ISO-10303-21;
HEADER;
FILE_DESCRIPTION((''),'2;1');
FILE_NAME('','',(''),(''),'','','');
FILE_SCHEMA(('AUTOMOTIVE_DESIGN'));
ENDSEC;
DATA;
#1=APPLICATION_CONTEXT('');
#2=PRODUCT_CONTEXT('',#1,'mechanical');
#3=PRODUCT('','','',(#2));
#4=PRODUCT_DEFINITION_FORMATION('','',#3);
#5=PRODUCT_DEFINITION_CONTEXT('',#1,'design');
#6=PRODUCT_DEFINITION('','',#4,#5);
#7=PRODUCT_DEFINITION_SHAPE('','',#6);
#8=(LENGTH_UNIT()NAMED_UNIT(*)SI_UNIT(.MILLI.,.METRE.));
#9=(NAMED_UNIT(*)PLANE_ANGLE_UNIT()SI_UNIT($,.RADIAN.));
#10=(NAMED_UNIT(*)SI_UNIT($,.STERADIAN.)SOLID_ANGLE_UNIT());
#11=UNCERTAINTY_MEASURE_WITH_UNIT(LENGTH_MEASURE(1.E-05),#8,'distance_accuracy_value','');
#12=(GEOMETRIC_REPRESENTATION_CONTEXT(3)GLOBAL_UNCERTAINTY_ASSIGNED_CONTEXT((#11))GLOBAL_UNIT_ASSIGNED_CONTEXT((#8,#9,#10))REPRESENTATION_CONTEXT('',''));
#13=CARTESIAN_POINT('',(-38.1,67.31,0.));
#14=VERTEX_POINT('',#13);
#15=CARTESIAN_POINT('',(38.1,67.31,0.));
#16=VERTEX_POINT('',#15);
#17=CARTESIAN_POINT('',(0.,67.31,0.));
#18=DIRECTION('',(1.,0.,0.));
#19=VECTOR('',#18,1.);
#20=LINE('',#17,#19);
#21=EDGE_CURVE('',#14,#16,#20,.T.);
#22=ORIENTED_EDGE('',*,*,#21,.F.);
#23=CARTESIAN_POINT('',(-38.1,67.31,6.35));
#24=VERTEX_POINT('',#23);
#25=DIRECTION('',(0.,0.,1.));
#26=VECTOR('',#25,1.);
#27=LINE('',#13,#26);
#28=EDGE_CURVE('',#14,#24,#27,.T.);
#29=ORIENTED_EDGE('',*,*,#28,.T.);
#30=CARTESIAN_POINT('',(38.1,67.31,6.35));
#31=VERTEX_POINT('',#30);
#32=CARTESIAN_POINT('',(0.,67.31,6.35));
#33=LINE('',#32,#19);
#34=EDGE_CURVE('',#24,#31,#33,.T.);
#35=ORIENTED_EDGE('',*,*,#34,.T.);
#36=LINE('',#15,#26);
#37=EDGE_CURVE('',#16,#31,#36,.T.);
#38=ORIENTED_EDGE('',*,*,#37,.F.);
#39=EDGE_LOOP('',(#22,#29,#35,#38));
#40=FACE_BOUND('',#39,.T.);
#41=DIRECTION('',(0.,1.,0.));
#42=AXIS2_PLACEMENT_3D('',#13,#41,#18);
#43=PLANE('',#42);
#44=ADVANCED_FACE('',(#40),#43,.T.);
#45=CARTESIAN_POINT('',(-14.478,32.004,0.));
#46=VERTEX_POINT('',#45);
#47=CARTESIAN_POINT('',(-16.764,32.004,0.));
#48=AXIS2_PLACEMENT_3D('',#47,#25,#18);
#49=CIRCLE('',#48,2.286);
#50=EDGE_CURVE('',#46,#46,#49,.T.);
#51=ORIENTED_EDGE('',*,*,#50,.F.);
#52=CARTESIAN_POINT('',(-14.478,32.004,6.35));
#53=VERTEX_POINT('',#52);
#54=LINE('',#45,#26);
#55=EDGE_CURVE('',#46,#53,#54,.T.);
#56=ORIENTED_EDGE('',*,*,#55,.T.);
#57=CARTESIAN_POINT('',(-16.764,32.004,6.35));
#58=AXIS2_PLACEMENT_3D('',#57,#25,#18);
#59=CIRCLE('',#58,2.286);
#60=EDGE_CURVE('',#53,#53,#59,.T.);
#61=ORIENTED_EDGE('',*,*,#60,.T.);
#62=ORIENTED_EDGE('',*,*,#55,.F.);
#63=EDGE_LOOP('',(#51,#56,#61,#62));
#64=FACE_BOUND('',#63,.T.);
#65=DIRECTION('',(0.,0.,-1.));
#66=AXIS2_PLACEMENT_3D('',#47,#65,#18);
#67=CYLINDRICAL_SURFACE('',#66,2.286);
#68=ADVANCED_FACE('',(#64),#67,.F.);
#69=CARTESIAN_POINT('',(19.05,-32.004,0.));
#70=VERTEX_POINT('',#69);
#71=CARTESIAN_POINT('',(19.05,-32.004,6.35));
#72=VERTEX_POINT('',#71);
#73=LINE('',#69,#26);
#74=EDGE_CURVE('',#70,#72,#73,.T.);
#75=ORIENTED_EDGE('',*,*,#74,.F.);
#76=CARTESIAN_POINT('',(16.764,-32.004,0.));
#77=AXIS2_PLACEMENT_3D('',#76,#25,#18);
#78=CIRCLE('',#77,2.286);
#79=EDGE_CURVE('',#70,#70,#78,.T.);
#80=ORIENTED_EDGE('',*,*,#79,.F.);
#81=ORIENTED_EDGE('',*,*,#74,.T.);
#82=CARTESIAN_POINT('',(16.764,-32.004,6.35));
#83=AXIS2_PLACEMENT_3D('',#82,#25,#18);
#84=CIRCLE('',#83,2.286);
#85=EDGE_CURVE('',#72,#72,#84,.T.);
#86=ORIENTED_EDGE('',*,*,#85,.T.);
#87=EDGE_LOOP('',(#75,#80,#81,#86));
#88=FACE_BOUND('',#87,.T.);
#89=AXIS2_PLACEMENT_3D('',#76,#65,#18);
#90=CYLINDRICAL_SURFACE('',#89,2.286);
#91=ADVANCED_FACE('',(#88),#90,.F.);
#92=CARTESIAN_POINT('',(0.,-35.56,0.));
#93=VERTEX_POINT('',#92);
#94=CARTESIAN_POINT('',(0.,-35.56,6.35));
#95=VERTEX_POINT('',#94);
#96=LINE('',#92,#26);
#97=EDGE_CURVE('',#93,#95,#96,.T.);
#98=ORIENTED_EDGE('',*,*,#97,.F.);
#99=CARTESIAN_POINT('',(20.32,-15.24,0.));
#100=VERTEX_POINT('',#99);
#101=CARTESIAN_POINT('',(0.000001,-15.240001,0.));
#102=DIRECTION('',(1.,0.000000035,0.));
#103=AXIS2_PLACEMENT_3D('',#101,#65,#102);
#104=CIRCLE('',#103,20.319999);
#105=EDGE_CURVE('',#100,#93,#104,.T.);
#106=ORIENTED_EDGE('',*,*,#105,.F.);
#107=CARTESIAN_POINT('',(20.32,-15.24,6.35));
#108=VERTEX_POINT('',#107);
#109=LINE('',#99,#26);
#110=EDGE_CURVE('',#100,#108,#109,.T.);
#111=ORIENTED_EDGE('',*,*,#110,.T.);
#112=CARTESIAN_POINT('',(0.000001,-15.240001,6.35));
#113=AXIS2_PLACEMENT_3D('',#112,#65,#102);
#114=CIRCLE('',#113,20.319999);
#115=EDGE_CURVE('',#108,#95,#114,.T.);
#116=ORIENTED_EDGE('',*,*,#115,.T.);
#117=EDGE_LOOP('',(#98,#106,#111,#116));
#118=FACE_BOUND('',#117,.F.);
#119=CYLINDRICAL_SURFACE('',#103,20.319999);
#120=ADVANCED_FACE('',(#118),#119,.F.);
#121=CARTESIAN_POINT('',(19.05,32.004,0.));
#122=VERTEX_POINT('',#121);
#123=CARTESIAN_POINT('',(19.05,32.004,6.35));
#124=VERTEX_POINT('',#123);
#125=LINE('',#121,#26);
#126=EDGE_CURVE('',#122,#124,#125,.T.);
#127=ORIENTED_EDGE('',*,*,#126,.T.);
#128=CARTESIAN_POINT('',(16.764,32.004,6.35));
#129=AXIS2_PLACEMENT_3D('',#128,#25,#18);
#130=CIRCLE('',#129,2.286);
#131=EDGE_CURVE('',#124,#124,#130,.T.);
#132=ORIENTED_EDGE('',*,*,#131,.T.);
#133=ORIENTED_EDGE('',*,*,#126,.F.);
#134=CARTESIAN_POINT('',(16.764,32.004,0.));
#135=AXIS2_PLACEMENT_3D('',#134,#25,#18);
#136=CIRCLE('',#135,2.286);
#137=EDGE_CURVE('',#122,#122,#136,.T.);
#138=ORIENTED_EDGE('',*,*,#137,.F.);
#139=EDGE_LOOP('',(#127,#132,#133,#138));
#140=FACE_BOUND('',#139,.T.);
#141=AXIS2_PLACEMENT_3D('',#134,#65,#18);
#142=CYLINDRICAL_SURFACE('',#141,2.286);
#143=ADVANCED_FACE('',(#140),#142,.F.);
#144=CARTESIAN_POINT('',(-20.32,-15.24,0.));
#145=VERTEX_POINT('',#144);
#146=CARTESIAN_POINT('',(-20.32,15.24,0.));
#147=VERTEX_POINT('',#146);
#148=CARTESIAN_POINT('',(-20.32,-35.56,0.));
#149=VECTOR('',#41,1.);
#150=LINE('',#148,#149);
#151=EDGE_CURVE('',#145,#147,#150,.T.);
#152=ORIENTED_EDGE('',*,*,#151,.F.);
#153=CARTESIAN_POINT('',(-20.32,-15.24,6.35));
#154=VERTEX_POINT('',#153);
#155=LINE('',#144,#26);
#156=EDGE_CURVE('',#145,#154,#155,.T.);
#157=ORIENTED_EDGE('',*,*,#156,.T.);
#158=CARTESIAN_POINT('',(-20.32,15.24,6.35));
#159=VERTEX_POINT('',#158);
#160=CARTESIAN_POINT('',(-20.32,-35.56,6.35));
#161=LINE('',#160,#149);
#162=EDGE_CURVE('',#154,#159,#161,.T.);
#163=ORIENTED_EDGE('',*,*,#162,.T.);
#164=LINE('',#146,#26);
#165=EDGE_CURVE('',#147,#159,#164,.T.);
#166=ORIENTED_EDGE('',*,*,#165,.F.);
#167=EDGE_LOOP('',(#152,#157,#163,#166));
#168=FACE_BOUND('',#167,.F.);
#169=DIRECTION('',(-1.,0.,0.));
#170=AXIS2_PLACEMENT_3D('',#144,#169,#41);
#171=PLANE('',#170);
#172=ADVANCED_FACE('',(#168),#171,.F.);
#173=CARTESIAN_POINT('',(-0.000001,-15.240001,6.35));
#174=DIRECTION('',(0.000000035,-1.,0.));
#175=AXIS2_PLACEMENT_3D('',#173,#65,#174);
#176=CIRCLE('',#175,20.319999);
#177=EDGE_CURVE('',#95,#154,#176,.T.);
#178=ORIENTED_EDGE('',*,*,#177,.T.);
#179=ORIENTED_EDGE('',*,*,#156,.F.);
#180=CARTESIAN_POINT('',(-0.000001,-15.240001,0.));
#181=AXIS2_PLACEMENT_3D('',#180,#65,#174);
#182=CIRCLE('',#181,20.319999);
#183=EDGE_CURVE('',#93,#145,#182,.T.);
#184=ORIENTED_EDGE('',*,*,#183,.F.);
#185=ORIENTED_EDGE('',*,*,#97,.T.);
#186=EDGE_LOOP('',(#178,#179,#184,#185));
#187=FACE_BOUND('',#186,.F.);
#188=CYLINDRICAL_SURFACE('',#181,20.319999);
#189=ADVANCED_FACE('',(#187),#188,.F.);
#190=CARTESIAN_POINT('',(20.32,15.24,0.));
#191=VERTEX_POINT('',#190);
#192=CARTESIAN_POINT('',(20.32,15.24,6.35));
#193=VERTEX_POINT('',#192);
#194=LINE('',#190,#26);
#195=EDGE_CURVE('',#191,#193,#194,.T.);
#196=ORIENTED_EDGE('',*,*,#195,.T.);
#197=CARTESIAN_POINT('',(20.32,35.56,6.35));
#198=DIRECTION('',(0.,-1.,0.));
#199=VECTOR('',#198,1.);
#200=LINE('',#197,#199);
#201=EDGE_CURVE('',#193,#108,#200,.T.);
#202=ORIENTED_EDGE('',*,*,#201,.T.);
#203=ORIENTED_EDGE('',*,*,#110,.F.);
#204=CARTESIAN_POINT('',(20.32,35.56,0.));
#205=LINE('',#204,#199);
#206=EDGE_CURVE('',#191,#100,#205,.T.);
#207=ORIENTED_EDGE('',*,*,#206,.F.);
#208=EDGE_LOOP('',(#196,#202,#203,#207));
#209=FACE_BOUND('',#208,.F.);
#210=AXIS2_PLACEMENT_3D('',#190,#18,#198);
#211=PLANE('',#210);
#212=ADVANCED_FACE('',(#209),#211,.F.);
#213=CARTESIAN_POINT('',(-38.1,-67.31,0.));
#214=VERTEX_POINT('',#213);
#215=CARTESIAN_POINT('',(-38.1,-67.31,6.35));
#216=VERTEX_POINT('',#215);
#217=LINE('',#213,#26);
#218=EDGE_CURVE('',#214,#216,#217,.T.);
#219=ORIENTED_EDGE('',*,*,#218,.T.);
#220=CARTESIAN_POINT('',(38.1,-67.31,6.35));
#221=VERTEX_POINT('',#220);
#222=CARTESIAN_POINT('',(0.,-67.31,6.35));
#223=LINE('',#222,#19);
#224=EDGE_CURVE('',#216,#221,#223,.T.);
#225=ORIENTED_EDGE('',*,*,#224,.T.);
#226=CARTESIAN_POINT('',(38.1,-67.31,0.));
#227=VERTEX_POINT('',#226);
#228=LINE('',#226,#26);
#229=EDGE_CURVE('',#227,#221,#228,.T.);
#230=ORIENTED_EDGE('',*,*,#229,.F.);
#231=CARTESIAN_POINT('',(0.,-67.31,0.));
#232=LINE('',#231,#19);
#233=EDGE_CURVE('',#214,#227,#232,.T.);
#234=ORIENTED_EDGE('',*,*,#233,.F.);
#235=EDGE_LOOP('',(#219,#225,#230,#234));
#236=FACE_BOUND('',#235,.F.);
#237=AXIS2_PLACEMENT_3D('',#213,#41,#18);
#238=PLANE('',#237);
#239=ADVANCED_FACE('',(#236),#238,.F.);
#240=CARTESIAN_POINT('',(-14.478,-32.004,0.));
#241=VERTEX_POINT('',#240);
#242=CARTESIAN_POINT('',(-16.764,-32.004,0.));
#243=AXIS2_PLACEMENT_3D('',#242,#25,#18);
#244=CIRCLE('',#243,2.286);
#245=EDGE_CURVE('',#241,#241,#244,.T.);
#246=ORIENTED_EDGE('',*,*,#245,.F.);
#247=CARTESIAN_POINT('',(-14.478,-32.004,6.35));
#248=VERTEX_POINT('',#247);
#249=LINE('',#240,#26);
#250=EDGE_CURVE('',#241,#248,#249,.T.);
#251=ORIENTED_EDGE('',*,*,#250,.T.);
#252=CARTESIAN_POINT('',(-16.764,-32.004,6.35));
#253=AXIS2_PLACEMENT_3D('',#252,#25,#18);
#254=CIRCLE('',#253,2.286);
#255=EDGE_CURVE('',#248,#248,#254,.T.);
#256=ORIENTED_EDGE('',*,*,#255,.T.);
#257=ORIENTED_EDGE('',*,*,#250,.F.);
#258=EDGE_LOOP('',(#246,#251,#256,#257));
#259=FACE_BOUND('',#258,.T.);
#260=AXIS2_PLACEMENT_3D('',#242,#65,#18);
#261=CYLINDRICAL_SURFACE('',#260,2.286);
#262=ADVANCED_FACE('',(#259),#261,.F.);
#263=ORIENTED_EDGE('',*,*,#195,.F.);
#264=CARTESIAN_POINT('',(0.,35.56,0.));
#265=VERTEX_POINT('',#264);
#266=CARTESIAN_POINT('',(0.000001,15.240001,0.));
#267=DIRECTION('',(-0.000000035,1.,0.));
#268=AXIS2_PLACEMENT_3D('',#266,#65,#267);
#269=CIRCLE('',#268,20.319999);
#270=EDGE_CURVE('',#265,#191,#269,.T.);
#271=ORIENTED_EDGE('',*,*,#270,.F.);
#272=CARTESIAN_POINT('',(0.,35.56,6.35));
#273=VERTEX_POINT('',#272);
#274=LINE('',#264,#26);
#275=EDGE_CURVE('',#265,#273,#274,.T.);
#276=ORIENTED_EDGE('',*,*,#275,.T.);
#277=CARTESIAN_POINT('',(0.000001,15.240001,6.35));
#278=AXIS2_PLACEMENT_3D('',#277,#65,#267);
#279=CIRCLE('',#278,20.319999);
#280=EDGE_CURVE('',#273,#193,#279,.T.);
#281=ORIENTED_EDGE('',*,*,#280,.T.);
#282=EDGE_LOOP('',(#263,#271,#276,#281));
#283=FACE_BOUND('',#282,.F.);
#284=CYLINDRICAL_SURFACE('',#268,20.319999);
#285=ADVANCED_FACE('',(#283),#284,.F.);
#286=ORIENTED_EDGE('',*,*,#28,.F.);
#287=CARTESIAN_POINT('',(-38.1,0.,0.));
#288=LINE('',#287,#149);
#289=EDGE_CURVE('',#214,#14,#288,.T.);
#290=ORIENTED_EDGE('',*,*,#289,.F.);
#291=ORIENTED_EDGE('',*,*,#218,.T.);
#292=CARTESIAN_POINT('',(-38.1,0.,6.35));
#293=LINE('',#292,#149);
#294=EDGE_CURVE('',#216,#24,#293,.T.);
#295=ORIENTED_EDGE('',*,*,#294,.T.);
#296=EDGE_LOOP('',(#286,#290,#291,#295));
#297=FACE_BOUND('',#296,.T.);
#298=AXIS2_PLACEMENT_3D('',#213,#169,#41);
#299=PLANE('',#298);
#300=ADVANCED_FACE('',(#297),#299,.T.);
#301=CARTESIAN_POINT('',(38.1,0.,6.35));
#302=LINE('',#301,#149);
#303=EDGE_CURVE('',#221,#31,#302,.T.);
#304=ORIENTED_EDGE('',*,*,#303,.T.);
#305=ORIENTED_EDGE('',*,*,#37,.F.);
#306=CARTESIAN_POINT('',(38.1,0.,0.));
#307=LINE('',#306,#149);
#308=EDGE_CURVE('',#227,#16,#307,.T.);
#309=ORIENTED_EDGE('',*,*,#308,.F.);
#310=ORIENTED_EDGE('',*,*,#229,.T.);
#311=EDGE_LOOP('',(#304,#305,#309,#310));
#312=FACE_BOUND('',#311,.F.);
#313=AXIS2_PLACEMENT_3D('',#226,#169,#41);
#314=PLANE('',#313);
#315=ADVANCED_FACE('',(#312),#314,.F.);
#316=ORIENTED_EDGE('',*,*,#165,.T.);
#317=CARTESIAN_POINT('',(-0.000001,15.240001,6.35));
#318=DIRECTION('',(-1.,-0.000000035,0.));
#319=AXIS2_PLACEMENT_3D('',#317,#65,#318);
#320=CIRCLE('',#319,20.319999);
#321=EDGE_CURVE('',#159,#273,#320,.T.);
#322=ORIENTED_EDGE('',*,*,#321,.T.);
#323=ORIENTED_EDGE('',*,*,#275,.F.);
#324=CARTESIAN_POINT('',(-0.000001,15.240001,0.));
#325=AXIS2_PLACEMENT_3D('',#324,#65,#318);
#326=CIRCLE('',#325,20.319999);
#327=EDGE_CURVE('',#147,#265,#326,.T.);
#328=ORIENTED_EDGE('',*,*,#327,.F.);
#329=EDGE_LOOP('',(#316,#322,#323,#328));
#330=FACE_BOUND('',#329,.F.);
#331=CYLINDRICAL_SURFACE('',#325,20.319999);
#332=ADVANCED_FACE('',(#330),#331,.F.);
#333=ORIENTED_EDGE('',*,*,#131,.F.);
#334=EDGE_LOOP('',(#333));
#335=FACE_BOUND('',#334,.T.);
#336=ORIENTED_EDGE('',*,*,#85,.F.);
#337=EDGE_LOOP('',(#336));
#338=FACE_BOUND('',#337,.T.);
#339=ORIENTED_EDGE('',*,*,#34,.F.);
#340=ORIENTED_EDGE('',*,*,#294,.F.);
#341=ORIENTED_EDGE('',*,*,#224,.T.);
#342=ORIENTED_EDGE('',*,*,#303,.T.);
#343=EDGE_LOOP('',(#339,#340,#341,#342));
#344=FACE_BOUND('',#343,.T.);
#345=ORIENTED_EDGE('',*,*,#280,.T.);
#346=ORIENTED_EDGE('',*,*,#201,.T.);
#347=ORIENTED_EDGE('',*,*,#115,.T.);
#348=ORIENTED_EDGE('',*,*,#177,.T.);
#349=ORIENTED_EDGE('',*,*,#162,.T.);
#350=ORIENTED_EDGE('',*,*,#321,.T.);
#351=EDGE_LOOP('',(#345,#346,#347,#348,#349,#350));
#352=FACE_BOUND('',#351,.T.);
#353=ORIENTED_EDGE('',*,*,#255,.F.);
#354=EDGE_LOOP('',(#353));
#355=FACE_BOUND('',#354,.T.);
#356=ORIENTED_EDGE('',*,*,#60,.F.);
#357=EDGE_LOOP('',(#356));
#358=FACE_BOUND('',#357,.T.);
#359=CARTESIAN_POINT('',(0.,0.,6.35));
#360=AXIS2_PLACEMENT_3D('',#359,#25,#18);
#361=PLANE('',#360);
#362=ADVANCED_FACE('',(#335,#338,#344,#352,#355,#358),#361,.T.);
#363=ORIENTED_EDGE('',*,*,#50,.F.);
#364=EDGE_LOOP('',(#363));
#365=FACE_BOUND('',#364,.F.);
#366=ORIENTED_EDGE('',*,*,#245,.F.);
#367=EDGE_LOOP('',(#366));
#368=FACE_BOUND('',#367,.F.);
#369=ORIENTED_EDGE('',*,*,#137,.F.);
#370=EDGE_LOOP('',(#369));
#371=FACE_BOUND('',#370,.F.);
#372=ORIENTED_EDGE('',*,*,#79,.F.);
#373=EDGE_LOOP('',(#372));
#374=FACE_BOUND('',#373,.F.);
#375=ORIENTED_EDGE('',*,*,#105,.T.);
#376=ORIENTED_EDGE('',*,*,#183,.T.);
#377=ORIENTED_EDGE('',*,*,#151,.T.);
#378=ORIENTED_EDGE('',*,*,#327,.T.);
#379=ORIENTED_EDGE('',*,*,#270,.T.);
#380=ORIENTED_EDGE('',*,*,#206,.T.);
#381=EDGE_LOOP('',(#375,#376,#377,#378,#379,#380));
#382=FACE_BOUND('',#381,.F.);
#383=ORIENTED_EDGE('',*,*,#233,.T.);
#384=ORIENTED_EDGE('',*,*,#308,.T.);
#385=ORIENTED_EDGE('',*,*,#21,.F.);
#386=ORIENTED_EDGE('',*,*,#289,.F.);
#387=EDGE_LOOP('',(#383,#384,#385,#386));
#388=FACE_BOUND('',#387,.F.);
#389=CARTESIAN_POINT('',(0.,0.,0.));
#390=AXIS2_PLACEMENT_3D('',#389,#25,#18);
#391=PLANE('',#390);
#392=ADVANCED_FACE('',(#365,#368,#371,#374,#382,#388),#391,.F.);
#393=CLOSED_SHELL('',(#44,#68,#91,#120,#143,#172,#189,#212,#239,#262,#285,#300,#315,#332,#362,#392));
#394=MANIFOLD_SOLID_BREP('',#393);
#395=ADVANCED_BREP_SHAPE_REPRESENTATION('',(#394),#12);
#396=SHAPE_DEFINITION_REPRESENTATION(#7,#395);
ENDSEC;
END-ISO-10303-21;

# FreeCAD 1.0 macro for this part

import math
import FreeCAD as App
import Part
import Sketcher

V = App.Vector
Q = App.Units.Quantity

doc = App.newDocument("Part")
body = doc.addObject("PartDesign::Body", "Body")

# Sketch on XY plane
sketch1 = body.newObject("Sketcher::SketchObject", "Sketch")
sketch1.AttachmentSupport = (doc.getObject("XY_Plane"), [""])
sketch1.MapMode = "FlatFace"
sketch1.addGeometry([
    Part.LineSegment(V(-38.1, 67.31, 0), V(-38.1, -67.31, 0)),  # 0
    Part.LineSegment(V(-38.1, -67.31, 0), V(38.1, -67.31, 0)),  # 1
    Part.LineSegment(V(38.1, -67.31, 0), V(38.1, 67.31, 0)),  # 2
    Part.LineSegment(V(38.1, 67.31, 0), V(-38.1, 67.31, 0)),  # 3
    Part.Circle(V(-16.764, -32.004, 0), V(0, 0, 1), 2.286),  # 4
    Part.Circle(V(16.764, -32.004, 0), V(0, 0, 1), 2.286),  # 5
    Part.Circle(V(-16.764, 32.004, 0), V(0, 0, 1), 2.286),  # 6
    Part.ArcOfCircle(Part.Circle(V(-0.000001, 15.240001, 0), V(0, 0, 1), 20.319999), math.radians(89.999998), math.radians(180.000002)),  # 7
    Part.ArcOfCircle(Part.Circle(V(0.000001, 15.240001, 0), V(0, 0, 1), 20.319999), math.radians(-0.000002), math.radians(90.000002)),  # 8
    Part.LineSegment(V(20.32, 15.24, 0), V(20.32, -15.24, 0)),  # 9
    Part.ArcOfCircle(Part.Circle(V(0.000001, -15.240001, 0), V(0, 0, 1), 20.319999), math.radians(-90.000002), math.radians(0.000002)),  # 10
    Part.ArcOfCircle(Part.Circle(V(-0.000001, -15.240001, 0), V(0, 0, 1), 20.319999), math.radians(179.999998), math.radians(270.000002)),  # 11
    Part.LineSegment(V(-20.32, -15.24, 0), V(-20.32, 15.24, 0)),  # 12
    Part.Circle(V(16.764, 32.004, 0), V(0, 0, 1), 2.286),  # 13
], False)
sketch1.addConstraint([
    Sketcher.Constraint("Coincident", 0, 2, 1, 1),
    Sketcher.Constraint("Coincident", 1, 2, 2, 1),
    Sketcher.Constraint("Coincident", 2, 2, 3, 1),
    Sketcher.Constraint("Coincident", 3, 2, 0, 1),
    Sketcher.Constraint("Tangent", 7, 1, 8, 2),
    Sketcher.Constraint("Tangent", 8, 1, 9, 1),
    Sketcher.Constraint("Tangent", 9, 2, 10, 2),
    Sketcher.Constraint("Tangent", 10, 1, 11, 2),
    Sketcher.Constraint("Tangent", 11, 1, 12, 1),
    Sketcher.Constraint("Tangent", 12, 2, 7, 2),
    Sketcher.Constraint("Vertical", 0),
    Sketcher.Constraint("Horizontal", 1),
    Sketcher.Constraint("Vertical", 2),
    Sketcher.Constraint("Horizontal", 3),
    Sketcher.Constraint("Vertical", 9),
    Sketcher.Constraint("Vertical", 12),
    Sketcher.Constraint("Equal", 4, 5),
    Sketcher.Constraint("Equal", 5, 6),
    Sketcher.Constraint("Equal", 7, 8),
    Sketcher.Constraint("Equal", 8, 10),
    Sketcher.Constraint("Equal", 6, 13),
    Sketcher.Constraint("Symmetric", 5, 3, 6, 3, -1, 1),
    Sketcher.Constraint("Symmetric", 7, 3, 10, 3, -1, 1),
    Sketcher.Constraint("Symmetric", 4, 3, 13, 3, -1, 1),
    Sketcher.Constraint("Symmetric", 0, 2, 2, 2, -1, 1),
    Sketcher.Constraint("Symmetric", 4, 3, 5, 3, -2),
    Sketcher.Constraint("PointOnObject", 7, 1, -2),
    Sketcher.Constraint("PointOnObject", 10, 1, -2),
    Sketcher.Constraint("Radius", 7, Q("0.8 in")),
    Sketcher.Constraint("Diameter", 4, Q("0.18 in")),
    Sketcher.Constraint("DistanceX", 1, 1, 1, 2, Q("3 in")),
    Sketcher.Constraint("DistanceY", 0, 2, 0, 1, Q("5.3 in")),
    Sketcher.Constraint("DistanceY", 9, 2, 9, 1, Q("1.2 in")),
    Sketcher.Constraint("DistanceX", 4, 3, -1, 1, Q("0.66 in")),
    Sketcher.Constraint("DistanceY", 4, 3, -1, 1, Q("1.26 in")),
])
pad1 = body.newObject("PartDesign::Pad", "Pad")
pad1.Profile = sketch1
pad1.Length = Q("0.25 in")

doc.recompute()
